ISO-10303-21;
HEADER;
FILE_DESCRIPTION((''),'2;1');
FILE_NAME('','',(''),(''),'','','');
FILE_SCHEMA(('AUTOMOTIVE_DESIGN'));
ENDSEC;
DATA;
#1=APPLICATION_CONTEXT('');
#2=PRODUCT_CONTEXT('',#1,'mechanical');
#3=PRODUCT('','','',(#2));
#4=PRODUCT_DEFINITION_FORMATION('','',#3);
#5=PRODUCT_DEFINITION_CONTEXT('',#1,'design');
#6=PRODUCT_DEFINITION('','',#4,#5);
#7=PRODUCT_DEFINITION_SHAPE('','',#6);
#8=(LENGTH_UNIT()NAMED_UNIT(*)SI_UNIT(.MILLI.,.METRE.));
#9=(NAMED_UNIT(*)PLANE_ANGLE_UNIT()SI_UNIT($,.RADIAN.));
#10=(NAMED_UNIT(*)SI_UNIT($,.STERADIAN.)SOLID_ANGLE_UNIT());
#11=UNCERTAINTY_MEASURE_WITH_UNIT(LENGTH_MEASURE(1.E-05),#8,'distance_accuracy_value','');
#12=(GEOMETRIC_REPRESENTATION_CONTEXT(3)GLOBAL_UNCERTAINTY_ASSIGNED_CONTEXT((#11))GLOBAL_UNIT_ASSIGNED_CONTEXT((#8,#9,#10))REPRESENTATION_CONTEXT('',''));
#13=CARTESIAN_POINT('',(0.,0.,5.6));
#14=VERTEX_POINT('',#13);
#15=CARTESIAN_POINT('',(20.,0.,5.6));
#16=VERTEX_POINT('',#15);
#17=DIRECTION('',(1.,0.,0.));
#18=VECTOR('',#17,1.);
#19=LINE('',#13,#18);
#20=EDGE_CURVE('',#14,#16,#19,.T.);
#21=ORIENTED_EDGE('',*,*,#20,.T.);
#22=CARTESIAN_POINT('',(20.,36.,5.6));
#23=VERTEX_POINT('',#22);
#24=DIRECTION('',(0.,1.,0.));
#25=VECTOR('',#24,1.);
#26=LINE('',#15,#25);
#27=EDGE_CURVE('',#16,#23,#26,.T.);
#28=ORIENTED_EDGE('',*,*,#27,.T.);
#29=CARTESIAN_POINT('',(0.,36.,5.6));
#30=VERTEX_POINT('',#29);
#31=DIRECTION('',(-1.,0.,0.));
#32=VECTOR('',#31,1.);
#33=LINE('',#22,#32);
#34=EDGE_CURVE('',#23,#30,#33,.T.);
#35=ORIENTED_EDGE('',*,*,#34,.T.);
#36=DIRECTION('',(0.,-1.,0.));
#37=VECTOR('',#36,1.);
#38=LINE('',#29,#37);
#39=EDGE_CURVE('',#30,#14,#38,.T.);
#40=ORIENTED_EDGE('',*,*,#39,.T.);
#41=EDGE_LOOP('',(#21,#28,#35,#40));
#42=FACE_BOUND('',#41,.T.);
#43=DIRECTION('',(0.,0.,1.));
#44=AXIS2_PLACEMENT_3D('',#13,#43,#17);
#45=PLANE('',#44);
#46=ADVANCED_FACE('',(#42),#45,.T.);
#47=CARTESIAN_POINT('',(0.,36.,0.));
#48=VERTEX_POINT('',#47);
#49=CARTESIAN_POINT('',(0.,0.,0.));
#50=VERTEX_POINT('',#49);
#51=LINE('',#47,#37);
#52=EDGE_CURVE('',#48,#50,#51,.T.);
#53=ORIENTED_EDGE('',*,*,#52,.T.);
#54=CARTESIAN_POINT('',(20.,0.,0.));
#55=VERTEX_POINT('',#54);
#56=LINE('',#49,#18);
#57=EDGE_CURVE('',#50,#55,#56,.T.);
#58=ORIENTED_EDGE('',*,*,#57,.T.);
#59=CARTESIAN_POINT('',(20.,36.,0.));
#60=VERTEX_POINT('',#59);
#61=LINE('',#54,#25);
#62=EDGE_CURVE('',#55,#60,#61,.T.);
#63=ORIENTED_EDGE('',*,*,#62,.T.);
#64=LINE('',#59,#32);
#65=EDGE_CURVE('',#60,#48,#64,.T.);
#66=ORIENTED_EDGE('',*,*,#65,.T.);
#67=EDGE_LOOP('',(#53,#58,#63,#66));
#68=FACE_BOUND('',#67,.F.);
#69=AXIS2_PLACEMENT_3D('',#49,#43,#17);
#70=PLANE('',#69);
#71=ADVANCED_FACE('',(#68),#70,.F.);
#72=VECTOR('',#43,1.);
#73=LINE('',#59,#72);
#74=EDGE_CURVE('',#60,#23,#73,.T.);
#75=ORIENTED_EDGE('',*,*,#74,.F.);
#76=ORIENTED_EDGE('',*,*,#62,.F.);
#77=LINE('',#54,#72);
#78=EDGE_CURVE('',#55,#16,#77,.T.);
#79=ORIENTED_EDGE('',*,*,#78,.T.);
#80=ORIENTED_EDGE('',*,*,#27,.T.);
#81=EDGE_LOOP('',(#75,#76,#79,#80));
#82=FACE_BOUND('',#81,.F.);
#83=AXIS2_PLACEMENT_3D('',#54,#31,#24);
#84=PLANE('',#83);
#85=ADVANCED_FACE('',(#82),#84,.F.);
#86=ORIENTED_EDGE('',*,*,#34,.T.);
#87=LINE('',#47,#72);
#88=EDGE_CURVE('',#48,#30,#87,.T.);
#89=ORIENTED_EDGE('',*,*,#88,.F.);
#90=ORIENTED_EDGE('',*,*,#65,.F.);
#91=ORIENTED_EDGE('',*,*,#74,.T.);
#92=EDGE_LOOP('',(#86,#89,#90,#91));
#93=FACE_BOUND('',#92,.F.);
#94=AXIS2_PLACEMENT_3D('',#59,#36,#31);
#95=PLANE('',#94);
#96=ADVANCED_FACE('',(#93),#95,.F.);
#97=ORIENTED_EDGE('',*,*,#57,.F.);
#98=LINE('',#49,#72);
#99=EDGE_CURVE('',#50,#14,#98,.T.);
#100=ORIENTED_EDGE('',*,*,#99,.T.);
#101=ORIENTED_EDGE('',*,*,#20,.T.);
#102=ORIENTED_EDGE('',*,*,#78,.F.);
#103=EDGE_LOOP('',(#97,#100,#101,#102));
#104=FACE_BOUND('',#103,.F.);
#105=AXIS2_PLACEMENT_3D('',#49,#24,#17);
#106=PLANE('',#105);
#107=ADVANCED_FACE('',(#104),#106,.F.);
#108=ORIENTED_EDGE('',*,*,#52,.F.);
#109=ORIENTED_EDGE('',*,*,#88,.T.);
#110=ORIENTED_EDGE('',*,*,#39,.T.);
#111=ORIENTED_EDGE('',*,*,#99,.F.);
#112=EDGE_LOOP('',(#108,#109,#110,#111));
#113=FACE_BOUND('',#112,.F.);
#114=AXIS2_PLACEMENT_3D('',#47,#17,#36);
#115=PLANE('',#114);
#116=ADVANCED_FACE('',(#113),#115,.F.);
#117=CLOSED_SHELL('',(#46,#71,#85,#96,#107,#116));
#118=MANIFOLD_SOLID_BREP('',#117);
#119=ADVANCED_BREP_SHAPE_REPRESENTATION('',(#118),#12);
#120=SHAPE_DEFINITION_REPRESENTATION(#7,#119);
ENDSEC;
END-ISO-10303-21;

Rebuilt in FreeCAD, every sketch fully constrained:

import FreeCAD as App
import Part
import Sketcher
from FreeCAD import Vector
Q = App.Units.Quantity

doc = App.newDocument("Part")
body = doc.addObject("PartDesign::Body", "Body")

sketch1 = body.newObject("Sketcher::SketchObject", "Sketch")
sketch1.AttachmentSupport = (doc.getObject("XY_Plane"), [""])
sketch1.MapMode = "FlatFace"
sketch1.addGeometry([
    Part.LineSegment(Vector(0, 36, 0), Vector(0, 0, 0)),
    Part.LineSegment(Vector(0, 0, 0), Vector(20, 0, 0)),
    Part.LineSegment(Vector(20, 0, 0), Vector(20, 36, 0)),
    Part.LineSegment(Vector(20, 36, 0), Vector(0, 36, 0)),
], False)
sketch1.addConstraint([
    Sketcher.Constraint("Coincident", 0, 2, 1, 1),
    Sketcher.Constraint("Coincident", 1, 2, 2, 1),
    Sketcher.Constraint("Coincident", 2, 2, 3, 1),
    Sketcher.Constraint("Coincident", 3, 2, 0, 1),
    Sketcher.Constraint("Vertical", 0),
    Sketcher.Constraint("Horizontal", 1),
    Sketcher.Constraint("Vertical", 2),
    Sketcher.Constraint("Horizontal", 3),
    Sketcher.Constraint("Coincident", 0, 2, -1, 1),
    Sketcher.Constraint("DistanceX", 1, 1, 1, 2, Q("20 mm")),
    Sketcher.Constraint("DistanceY", 0, 2, 0, 1, Q("36 mm")),
])
pad1 = body.newObject("PartDesign::Pad", "Pad")
pad1.Profile = sketch1
pad1.Length = 5.6

doc.recompute()
